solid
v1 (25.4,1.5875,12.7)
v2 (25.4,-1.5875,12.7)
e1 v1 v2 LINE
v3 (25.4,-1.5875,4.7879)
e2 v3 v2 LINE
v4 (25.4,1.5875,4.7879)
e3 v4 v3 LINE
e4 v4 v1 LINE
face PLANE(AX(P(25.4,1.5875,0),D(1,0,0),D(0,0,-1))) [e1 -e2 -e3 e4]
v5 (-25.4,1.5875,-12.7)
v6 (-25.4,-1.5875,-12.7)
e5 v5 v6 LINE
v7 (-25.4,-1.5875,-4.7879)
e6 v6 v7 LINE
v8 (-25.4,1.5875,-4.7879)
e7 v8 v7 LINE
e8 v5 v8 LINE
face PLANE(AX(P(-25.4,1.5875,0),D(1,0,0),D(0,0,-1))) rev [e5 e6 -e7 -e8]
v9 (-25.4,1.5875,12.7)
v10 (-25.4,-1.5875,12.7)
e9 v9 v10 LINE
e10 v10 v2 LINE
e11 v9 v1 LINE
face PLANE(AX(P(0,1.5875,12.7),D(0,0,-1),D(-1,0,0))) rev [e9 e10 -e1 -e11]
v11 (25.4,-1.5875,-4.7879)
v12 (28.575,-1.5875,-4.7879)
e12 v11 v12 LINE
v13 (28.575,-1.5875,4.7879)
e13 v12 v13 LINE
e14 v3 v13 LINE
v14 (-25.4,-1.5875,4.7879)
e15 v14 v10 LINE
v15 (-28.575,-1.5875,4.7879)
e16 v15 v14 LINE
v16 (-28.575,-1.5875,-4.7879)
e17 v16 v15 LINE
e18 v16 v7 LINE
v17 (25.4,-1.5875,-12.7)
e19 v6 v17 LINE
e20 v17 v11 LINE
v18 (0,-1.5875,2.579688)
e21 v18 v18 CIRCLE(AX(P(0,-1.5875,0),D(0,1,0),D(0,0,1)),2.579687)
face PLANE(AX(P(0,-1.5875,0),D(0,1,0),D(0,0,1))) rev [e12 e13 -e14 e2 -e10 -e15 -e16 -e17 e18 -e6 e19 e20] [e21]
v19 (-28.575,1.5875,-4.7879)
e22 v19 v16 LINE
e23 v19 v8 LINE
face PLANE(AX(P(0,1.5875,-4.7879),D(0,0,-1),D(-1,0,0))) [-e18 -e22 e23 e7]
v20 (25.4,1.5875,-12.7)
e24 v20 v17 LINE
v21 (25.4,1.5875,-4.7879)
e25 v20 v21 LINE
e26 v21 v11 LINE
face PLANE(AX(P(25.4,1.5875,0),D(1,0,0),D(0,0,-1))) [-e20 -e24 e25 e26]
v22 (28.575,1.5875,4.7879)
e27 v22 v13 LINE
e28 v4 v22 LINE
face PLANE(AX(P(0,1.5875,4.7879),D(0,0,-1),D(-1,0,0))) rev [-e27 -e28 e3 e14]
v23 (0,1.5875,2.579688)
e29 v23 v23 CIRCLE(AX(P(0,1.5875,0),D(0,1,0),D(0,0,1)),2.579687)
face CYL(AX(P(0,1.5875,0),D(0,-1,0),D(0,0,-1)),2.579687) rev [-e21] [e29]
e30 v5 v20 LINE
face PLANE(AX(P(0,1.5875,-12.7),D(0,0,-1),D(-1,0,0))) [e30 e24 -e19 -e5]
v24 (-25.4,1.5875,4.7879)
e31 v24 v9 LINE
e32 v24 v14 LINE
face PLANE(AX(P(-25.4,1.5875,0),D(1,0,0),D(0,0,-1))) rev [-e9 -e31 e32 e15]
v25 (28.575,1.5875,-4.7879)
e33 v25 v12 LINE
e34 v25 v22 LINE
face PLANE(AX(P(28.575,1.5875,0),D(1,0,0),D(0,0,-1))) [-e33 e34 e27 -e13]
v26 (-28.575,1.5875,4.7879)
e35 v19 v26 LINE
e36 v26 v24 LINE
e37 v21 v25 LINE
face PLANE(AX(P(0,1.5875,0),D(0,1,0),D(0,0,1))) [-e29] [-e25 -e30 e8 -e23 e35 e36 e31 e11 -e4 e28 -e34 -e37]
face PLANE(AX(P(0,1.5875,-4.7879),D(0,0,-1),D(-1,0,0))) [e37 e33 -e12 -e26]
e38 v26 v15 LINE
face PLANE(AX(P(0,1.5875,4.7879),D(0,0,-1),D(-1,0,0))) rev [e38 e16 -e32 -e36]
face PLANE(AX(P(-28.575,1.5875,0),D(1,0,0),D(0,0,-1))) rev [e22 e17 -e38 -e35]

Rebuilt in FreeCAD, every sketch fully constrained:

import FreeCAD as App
import Part
import Sketcher

V = App.Vector
Q = App.Units.Quantity

doc = App.newDocument("Part")
body = doc.addObject("PartDesign::Body", "Body")

# Sketch on XZ plane
sketch1 = doc.addObject("Sketcher::SketchObject", "Sketch")
body.addObject(sketch1)
sketch1.AttachmentSupport = (doc.XZ_Plane, [""])
sketch1.MapMode = "FlatFace"
sketch1.addGeometry(Part.LineSegment(V(25.4, 12.7, 0), V(25.4, 4.8, 0)), False)
sketch1.addGeometry(Part.LineSegment(V(25.4, 4.8, 0), V(28.6, 4.8, 0)), False)
sketch1.addGeometry(Part.LineSegment(V(28.6, 4.8, 0), V(28.6, -4.8, 0)), False)
sketch1.addGeometry(Part.LineSegment(V(28.6, -4.8, 0), V(25.4, -4.8, 0)), False)
sketch1.addGeometry(Part.LineSegment(V(25.4, -4.8, 0), V(25.4, -12.7, 0)), False)
sketch1.addGeometry(Part.LineSegment(V(25.4, -12.7, 0), V(-25.4, -12.7, 0)), False)
sketch1.addGeometry(Part.LineSegment(V(-25.4, -12.7, 0), V(-25.4, -4.8, 0)), False)
sketch1.addGeometry(Part.LineSegment(V(-25.4, -4.8, 0), V(-28.6, -4.8, 0)), False)
sketch1.addGeometry(Part.LineSegment(V(-28.6, -4.8, 0), V(-28.6, 4.8, 0)), False)
sketch1.addGeometry(Part.LineSegment(V(-28.6, 4.8, 0), V(-25.4, 4.8, 0)), False)
sketch1.addGeometry(Part.LineSegment(V(-25.4, 4.8, 0), V(-25.4, 12.7, 0)), False)
sketch1.addGeometry(Part.LineSegment(V(-25.4, 12.7, 0), V(25.4, 12.7, 0)), False)
sketch1.addGeometry(Part.Circle(V(0, 0, 0), V(0, 0, 1), 2.6), False)
sketch1.addConstraint(Sketcher.Constraint("Coincident", 0, 2, 1, 1))
sketch1.addConstraint(Sketcher.Constraint("Coincident", 1, 2, 2, 1))
sketch1.addConstraint(Sketcher.Constraint("Coincident", 2, 2, 3, 1))
sketch1.addConstraint(Sketcher.Constraint("Coincident", 3, 2, 4, 1))
sketch1.addConstraint(Sketcher.Constraint("Coincident", 4, 2, 5, 1))
sketch1.addConstraint(Sketcher.Constraint("Coincident", 5, 2, 6, 1))
sketch1.addConstraint(Sketcher.Constraint("Coincident", 6, 2, 7, 1))
sketch1.addConstraint(Sketcher.Constraint("Coincident", 7, 2, 8, 1))
sketch1.addConstraint(Sketcher.Constraint("Coincident", 8, 2, 9, 1))
sketch1.addConstraint(Sketcher.Constraint("Coincident", 9, 2, 10, 1))
sketch1.addConstraint(Sketcher.Constraint("Coincident", 10, 2, 11, 1))
sketch1.addConstraint(Sketcher.Constraint("Coincident", 11, 2, 0, 1))
sketch1.addConstraint(Sketcher.Constraint("Vertical", 0))
sketch1.addConstraint(Sketcher.Constraint("Horizontal", 1))
sketch1.addConstraint(Sketcher.Constraint("Vertical", 2))
sketch1.addConstraint(Sketcher.Constraint("Horizontal", 3))
sketch1.addConstraint(Sketcher.Constraint("Vertical", 4))
sketch1.addConstraint(Sketcher.Constraint("Horizontal", 5))
sketch1.addConstraint(Sketcher.Constraint("Vertical", 6))
sketch1.addConstraint(Sketcher.Constraint("Horizontal", 7))
sketch1.addConstraint(Sketcher.Constraint("Vertical", 8))
sketch1.addConstraint(Sketcher.Constraint("Horizontal", 9))
sketch1.addConstraint(Sketcher.Constraint("Vertical", 10))
sketch1.addConstraint(Sketcher.Constraint("Horizontal", 11))
sketch1.addConstraint(Sketcher.Constraint("Coincident", 12, 3, -1, 1))
sketch1.addConstraint(Sketcher.Constraint("Symmetric", 0, 2, 6, 2, -1, 1))
sketch1.addConstraint(Sketcher.Constraint("Symmetric", 2, 2, 8, 2, -1, 1))
sketch1.addConstraint(Sketcher.Constraint("Symmetric", 4, 2, 10, 2, -1, 1))
sketch1.addConstraint(Sketcher.Constraint("Symmetric", 3, 2, 6, 2, -2))
sketch1.addConstraint(Sketcher.Constraint("DistanceX", 5, 2, 5, 1, Q("2 in")))
sketch1.addConstraint(Sketcher.Constraint("Diameter", 12, Q("0.203125 in")))
sketch1.addConstraint(Sketcher.Constraint("DistanceY", 5, 2, 10, 2, Q("1 in")))
sketch1.addConstraint(Sketcher.Constraint("DistanceX", 1, 1, 1, 2, Q("0.125 in")))
sketch1.addConstraint(Sketcher.Constraint("DistanceY", 2, 2, 2, 1, Q("0.377 in")))
pad1 = doc.addObject("PartDesign::Pad", "Pad")
body.addObject(pad1)
pad1.Profile = sketch1
pad1.Length = Q("0.125 in")
pad1.Midplane = True

doc.recompute()
